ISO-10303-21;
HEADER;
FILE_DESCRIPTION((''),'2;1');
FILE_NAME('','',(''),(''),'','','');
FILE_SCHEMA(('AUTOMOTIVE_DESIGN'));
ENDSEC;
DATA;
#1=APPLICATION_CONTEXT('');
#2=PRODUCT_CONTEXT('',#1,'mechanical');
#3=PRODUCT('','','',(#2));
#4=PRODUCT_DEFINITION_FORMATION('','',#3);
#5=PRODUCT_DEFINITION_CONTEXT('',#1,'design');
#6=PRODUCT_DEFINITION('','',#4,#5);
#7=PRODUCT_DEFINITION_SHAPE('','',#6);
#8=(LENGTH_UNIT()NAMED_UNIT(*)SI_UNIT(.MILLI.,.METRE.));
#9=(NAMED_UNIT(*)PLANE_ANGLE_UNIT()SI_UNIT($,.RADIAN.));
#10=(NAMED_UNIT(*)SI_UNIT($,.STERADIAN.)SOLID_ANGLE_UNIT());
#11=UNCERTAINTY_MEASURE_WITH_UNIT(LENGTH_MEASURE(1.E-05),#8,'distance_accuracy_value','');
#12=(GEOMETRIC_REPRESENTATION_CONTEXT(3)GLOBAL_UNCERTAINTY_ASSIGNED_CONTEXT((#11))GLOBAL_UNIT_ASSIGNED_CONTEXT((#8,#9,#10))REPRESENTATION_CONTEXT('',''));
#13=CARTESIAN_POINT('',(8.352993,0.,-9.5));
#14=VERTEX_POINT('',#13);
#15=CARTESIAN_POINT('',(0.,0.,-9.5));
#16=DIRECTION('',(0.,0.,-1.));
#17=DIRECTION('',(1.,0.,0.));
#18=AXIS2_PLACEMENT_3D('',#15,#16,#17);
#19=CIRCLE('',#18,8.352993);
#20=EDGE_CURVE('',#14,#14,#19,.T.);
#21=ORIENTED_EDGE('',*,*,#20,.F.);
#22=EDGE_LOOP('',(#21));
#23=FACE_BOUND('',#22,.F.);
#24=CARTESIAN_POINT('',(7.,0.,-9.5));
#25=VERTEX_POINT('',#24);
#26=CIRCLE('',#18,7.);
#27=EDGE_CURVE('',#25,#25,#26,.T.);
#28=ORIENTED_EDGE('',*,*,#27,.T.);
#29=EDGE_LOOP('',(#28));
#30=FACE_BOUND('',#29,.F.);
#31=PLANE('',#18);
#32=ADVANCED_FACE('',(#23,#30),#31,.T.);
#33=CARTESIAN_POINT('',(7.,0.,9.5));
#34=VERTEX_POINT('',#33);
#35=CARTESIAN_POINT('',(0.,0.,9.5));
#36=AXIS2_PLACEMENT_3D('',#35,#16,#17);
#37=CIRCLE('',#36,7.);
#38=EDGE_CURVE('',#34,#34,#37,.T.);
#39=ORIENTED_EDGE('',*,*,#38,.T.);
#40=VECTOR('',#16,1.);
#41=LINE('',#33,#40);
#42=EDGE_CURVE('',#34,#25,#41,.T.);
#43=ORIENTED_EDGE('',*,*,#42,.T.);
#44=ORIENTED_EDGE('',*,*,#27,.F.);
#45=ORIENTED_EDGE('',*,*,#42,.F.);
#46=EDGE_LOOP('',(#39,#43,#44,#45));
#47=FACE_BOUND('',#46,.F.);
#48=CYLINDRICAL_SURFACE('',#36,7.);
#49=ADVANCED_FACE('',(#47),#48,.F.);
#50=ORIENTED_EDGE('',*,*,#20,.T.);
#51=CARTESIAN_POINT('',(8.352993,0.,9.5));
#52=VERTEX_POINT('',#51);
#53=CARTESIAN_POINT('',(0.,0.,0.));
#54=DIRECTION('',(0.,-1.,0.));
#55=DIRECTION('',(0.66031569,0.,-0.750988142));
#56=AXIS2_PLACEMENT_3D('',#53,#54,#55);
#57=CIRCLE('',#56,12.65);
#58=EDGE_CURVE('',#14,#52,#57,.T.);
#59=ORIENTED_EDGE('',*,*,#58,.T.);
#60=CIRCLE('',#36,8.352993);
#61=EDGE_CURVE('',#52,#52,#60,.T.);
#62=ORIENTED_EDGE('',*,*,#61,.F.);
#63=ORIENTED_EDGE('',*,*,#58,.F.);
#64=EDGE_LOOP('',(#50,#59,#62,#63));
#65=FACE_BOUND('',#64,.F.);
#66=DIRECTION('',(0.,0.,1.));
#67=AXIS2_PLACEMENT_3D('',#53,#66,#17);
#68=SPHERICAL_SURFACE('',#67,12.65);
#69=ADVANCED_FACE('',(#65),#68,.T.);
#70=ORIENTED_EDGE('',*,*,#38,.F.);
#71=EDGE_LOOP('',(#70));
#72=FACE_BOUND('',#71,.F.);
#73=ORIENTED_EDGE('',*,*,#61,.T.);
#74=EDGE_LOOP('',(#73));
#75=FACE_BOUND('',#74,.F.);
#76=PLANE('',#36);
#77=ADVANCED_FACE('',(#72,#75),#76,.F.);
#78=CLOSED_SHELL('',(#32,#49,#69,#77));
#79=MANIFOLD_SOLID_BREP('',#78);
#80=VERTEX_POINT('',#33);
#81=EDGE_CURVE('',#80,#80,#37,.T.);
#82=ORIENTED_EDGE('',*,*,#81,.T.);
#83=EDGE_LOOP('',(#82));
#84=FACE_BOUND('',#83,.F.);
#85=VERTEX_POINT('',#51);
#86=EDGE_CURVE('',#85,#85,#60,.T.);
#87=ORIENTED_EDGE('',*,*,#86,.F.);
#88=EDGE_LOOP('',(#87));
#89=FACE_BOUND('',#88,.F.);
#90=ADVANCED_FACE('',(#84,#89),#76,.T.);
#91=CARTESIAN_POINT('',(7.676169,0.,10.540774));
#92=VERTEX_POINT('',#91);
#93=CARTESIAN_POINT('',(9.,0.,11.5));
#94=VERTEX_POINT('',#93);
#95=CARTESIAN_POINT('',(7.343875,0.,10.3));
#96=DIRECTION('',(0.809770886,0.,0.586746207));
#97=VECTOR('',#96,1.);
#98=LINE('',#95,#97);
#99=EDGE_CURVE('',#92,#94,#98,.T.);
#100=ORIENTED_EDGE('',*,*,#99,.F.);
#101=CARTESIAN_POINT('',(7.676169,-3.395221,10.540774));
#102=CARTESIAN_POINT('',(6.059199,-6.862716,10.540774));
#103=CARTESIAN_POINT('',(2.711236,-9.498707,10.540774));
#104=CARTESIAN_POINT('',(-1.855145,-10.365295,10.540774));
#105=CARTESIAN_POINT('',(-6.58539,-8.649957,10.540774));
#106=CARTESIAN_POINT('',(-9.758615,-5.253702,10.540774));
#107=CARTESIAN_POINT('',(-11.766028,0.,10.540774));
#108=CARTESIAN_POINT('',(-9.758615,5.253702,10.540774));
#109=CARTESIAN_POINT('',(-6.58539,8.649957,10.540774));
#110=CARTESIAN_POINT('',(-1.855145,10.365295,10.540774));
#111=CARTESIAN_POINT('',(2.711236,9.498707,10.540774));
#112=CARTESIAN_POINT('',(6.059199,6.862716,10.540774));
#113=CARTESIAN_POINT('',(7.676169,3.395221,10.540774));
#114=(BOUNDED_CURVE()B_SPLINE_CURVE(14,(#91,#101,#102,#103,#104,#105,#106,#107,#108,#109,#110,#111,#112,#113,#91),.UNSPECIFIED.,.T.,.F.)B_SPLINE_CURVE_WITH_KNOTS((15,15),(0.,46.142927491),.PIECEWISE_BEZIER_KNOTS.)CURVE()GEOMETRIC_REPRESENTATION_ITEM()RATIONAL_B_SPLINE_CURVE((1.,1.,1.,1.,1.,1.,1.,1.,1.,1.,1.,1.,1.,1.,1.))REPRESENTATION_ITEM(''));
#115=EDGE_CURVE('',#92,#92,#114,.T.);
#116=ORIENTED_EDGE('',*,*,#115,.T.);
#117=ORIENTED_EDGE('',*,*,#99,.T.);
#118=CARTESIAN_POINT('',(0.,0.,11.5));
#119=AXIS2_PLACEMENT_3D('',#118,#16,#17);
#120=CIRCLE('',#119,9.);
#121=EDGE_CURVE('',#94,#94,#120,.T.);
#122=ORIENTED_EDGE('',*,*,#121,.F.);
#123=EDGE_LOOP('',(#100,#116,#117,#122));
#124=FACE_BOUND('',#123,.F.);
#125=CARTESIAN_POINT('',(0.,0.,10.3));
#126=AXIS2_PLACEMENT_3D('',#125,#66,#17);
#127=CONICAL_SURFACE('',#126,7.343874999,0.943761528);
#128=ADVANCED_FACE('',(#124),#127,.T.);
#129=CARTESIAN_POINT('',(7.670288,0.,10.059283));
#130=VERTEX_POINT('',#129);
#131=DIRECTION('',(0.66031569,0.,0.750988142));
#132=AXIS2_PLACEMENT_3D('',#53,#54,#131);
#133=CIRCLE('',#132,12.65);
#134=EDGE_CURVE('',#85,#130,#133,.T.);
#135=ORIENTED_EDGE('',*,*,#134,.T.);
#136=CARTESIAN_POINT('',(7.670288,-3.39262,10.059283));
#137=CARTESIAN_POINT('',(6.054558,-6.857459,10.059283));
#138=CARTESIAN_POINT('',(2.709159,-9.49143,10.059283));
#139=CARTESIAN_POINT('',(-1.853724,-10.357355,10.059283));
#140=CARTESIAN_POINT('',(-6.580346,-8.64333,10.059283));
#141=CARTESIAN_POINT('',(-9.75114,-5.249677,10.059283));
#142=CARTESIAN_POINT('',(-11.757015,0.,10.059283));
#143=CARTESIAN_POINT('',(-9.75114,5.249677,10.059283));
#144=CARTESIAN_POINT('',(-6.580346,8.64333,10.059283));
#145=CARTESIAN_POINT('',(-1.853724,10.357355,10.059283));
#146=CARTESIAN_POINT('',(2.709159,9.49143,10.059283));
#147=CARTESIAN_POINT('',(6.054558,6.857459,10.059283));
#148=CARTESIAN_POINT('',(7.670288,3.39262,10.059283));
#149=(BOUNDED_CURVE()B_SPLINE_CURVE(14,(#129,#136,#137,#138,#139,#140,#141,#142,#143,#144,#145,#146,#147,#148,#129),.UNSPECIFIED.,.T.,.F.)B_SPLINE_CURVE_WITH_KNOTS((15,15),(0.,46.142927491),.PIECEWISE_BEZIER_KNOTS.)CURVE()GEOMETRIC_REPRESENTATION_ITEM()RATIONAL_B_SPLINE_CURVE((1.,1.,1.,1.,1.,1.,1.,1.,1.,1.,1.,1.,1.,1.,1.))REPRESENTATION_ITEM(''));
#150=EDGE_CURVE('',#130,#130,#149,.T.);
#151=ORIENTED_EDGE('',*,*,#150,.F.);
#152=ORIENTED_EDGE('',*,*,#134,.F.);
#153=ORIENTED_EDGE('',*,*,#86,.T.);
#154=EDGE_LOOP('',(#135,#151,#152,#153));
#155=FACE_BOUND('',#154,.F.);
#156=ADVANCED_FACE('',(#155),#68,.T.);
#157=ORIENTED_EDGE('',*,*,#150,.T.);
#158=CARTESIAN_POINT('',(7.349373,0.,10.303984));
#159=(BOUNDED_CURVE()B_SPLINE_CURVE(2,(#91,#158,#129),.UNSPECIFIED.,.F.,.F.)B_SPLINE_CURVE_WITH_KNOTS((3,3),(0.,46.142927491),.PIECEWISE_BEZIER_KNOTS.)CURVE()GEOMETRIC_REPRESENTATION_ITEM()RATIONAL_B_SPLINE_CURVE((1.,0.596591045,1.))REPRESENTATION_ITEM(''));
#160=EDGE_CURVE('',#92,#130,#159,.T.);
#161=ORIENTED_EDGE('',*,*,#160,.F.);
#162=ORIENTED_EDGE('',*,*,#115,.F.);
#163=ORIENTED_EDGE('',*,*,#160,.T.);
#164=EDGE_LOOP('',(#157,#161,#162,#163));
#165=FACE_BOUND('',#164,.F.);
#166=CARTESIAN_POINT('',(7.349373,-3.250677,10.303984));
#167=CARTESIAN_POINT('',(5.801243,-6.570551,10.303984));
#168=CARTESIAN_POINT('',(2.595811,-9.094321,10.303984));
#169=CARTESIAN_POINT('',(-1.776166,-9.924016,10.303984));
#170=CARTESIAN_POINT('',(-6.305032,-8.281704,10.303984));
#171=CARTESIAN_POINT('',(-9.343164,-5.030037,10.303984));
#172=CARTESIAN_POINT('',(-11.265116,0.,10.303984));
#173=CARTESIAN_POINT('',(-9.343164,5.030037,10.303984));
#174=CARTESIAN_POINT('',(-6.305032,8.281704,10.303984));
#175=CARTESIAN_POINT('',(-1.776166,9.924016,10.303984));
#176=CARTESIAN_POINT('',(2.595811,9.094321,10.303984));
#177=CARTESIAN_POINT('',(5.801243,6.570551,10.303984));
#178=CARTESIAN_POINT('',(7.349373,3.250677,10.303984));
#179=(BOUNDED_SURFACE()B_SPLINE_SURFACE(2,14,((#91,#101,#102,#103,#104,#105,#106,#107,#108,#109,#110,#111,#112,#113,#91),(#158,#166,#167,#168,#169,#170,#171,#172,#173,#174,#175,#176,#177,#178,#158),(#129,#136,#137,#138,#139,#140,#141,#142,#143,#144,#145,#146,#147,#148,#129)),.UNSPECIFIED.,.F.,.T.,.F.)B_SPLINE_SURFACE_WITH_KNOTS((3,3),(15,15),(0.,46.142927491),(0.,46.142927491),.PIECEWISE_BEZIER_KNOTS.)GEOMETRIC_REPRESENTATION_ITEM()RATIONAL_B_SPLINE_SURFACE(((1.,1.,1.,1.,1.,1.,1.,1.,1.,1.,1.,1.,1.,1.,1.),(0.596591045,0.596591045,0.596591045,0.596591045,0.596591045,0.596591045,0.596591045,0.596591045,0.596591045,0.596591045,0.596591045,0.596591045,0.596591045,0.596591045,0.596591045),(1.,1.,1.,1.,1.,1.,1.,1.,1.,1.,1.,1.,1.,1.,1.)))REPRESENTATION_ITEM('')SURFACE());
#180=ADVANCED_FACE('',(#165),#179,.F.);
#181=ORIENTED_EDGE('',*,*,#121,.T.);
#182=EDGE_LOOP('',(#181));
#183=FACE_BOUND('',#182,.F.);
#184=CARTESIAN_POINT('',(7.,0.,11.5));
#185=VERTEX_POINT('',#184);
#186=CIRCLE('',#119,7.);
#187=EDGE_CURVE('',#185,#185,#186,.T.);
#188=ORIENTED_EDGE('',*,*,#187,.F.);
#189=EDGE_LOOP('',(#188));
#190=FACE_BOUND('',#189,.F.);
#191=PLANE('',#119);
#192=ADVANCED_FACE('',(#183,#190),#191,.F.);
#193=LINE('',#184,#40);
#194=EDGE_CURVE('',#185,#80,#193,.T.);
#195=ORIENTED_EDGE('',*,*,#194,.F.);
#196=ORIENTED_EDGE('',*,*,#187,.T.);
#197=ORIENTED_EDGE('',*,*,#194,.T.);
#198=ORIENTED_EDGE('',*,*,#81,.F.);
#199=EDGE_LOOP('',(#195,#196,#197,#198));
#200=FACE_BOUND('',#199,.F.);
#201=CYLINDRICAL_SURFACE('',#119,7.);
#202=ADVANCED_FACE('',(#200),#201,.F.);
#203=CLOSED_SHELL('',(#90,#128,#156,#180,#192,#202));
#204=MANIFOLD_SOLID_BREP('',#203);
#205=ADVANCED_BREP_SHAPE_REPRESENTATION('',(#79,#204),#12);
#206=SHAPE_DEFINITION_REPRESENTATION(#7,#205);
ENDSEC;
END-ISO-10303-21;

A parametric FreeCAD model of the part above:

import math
import FreeCAD as App
import Part
import Sketcher


def edges_at(feature, points):
    """Names of the edges that pass closest to the given points."""
    edges = feature.Shape.Edges
    near = lambda p: min(range(len(edges)), key=lambda i: edges[i].distToShape(Part.Vertex(*p))[0])
    return sorted({f"Edge{near(p) + 1}" for p in points})

doc = App.newDocument("Part")
body = doc.addObject("PartDesign::Body", "Body")

sketch1 = doc.addObject("Sketcher::SketchObject", "Sketch")
body.addObject(sketch1)
sketch1.AttachmentSupport = (doc.XZ_Plane, [""])
sketch1.MapMode = "FlatFace"
sketch1.addGeometry(Part.LineSegment(App.Vector(7.3, 10.3, 0), App.Vector(9, 11.5, 0)), False)
sketch1.addGeometry(Part.LineSegment(App.Vector(9, 11.5, 0), App.Vector(7, 11.5, 0)), False)
sketch1.addGeometry(Part.LineSegment(App.Vector(7, 11.5, 0), App.Vector(7, 9.5, 0)), False)
sketch1.addGeometry(Part.LineSegment(App.Vector(7, 9.5, 0), App.Vector(8.4, 9.5, 0)), False)
sketch1.addGeometry(Part.ArcOfCircle(Part.Circle(App.Vector(0, 0, 0), App.Vector(0, 0, 1), 12.7), math.radians(48.68), math.radians(54.51)), False)
sketch1.addConstraint(Sketcher.Constraint("Coincident", 0, 2, 1, 1))
sketch1.addConstraint(Sketcher.Constraint("Coincident", 1, 2, 2, 1))
sketch1.addConstraint(Sketcher.Constraint("Coincident", 2, 2, 3, 1))
sketch1.addConstraint(Sketcher.Constraint("Coincident", 3, 2, 4, 1))
sketch1.addConstraint(Sketcher.Constraint("Coincident", 4, 2, 0, 1))
sketch1.addConstraint(Sketcher.Constraint("Horizontal", 1))
sketch1.addConstraint(Sketcher.Constraint("Vertical", 2))
sketch1.addConstraint(Sketcher.Constraint("Horizontal", 3))
sketch1.addConstraint(Sketcher.Constraint("Coincident", 4, 3, -1, 1))
sketch1.addConstraint(Sketcher.Constraint("Equal", 1, 2))
sketch1.addConstraint(Sketcher.Constraint("DistanceX", 1, 2, 1, 1, 2.0))
sketch1.addConstraint(Sketcher.Constraint("Radius", 4, 12.65))
sketch1.addConstraint(Sketcher.Constraint("DistanceX", -1, 1, 0, 2, 9.0))
sketch1.addConstraint(Sketcher.Constraint("DistanceY", -1, 1, 0, 2, 11.5))
sketch1.addConstraint(Sketcher.Constraint("DistanceY", -1, 1, 4, 2, 10.3))
revolution = doc.addObject("PartDesign::Revolution", "Revolution")
body.addObject(revolution)
revolution.Profile = sketch1
revolution.ReferenceAxis = (sketch1, ["V_Axis"])
revolution.Angle = 360
doc.recompute()

fillet = doc.addObject("PartDesign::Fillet", "Fillet")
body.addObject(fillet)
fillet.Base = (revolution, edges_at(revolution, [(-7.344, 0, 10.3)]))
fillet.Radius = 0.3
body2 = doc.addObject("PartDesign::Body", "Body001")

sketch2 = doc.addObject("Sketcher::SketchObject", "Sketch001")
body2.addObject(sketch2)
sketch2.AttachmentSupport = (doc.getObject("XZ_Plane001"), [""])
sketch2.MapMode = "FlatFace"
sketch2.addGeometry(Part.ArcOfCircle(Part.Circle(App.Vector(0, 0, 0), App.Vector(0, 0, 1), 12.7), math.radians(-49), math.radians(49)), False)
sketch2.addGeometry(Part.LineSegment(App.Vector(8.4, 9.5, 0), App.Vector(7, 9.5, 0)), False)
sketch2.addGeometry(Part.LineSegment(App.Vector(7, 9.5, 0), App.Vector(7, -9.5, 0)), False)
sketch2.addGeometry(Part.LineSegment(App.Vector(7, -9.5, 0), App.Vector(8.4, -9.5, 0)), False)
sketch2.addConstraint(Sketcher.Constraint("Coincident", 0, 2, 1, 1))
sketch2.addConstraint(Sketcher.Constraint("Coincident", 1, 2, 2, 1))
sketch2.addConstraint(Sketcher.Constraint("Coincident", 2, 2, 3, 1))
sketch2.addConstraint(Sketcher.Constraint("Coincident", 3, 2, 0, 1))
sketch2.addConstraint(Sketcher.Constraint("Horizontal", 1))
sketch2.addConstraint(Sketcher.Constraint("Vertical", 2))
sketch2.addConstraint(Sketcher.Constraint("Horizontal", 3))
sketch2.addConstraint(Sketcher.Constraint("Coincident", 0, 3, -1, 1))
sketch2.addConstraint(Sketcher.Constraint("Vertical", 0, 2, 3, 2))
sketch2.addConstraint(Sketcher.Constraint("DistanceY", 2, 2, 2, 1, 19.0))
sketch2.addConstraint(Sketcher.Constraint("Radius", 0, 12.65))
sketch2.addConstraint(Sketcher.Constraint("DistanceX", -1, 1, 1, 2, 7.0))
revolution2 = doc.addObject("PartDesign::Revolution", "Revolution001")
body2.addObject(revolution2)
revolution2.Profile = sketch2
revolution2.ReferenceAxis = (sketch2, ["V_Axis"])
revolution2.Angle = 360

doc.recompute()
